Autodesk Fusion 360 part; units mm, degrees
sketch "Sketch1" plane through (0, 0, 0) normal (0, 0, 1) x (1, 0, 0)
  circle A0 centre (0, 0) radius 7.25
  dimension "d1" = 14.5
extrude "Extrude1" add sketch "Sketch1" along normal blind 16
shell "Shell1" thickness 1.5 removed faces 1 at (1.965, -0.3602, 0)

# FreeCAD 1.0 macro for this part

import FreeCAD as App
import Part
import Sketcher
Q = App.Units.Quantity


def faces_at(feature, points):
    """Names of the faces that lie closest to the given points."""
    faces = feature.Shape.Faces
    near = lambda p: min(range(len(faces)), key=lambda i: faces[i].distToShape(Part.Vertex(*p))[0])
    return sorted({f"Face{near(p) + 1}" for p in points})

doc = App.newDocument("Part")
params = doc.addObject("Spreadsheet::Sheet", "Params")
for row, (alias, value) in enumerate([
    ("sketch1_diameter", "14.5 mm"),
    ("pad1_length", "16 mm"),
    ("thickness_wall", "1.5 mm"),
], start=1):
    params.set(f"A{row}", alias)
    params.set(f"B{row}", "=" + value)
    params.setAlias(f"B{row}", alias)

body = doc.addObject("PartDesign::Body", "Body")

# Sketch on XY plane
sketch1 = body.newObject("Sketcher::SketchObject", "Sketch")
sketch1.AttachmentSupport = (doc.getObject("XY_Plane"), [""])
sketch1.MapMode = "FlatFace"
sketch1.addGeometry(Part.Circle(App.Vector(0, 0, 0), App.Vector(0, 0, 1), 7), False)
sketch1.addConstraint([
    Sketcher.Constraint("Coincident", 0, 3, -1, 1),
    Sketcher.Constraint("Diameter", 0, Q("14.5 mm")),
])
sketch1.setExpression("Constraints[1]", "Params.sketch1_diameter")
pad1 = body.newObject("PartDesign::Pad", "Pad")
pad1.Profile = sketch1
pad1.setExpression("Length", "Params.pad1_length")
doc.recompute()

thickness = body.newObject("PartDesign::Thickness", "Thickness")
thickness.Base = (pad1, faces_at(pad1, [(1.965, -0.36, 0)]))
thickness.setExpression("Value", "Params.thickness_wall")
thickness.Reversed = True
thickness.Join = "Intersection"

doc.recompute()
